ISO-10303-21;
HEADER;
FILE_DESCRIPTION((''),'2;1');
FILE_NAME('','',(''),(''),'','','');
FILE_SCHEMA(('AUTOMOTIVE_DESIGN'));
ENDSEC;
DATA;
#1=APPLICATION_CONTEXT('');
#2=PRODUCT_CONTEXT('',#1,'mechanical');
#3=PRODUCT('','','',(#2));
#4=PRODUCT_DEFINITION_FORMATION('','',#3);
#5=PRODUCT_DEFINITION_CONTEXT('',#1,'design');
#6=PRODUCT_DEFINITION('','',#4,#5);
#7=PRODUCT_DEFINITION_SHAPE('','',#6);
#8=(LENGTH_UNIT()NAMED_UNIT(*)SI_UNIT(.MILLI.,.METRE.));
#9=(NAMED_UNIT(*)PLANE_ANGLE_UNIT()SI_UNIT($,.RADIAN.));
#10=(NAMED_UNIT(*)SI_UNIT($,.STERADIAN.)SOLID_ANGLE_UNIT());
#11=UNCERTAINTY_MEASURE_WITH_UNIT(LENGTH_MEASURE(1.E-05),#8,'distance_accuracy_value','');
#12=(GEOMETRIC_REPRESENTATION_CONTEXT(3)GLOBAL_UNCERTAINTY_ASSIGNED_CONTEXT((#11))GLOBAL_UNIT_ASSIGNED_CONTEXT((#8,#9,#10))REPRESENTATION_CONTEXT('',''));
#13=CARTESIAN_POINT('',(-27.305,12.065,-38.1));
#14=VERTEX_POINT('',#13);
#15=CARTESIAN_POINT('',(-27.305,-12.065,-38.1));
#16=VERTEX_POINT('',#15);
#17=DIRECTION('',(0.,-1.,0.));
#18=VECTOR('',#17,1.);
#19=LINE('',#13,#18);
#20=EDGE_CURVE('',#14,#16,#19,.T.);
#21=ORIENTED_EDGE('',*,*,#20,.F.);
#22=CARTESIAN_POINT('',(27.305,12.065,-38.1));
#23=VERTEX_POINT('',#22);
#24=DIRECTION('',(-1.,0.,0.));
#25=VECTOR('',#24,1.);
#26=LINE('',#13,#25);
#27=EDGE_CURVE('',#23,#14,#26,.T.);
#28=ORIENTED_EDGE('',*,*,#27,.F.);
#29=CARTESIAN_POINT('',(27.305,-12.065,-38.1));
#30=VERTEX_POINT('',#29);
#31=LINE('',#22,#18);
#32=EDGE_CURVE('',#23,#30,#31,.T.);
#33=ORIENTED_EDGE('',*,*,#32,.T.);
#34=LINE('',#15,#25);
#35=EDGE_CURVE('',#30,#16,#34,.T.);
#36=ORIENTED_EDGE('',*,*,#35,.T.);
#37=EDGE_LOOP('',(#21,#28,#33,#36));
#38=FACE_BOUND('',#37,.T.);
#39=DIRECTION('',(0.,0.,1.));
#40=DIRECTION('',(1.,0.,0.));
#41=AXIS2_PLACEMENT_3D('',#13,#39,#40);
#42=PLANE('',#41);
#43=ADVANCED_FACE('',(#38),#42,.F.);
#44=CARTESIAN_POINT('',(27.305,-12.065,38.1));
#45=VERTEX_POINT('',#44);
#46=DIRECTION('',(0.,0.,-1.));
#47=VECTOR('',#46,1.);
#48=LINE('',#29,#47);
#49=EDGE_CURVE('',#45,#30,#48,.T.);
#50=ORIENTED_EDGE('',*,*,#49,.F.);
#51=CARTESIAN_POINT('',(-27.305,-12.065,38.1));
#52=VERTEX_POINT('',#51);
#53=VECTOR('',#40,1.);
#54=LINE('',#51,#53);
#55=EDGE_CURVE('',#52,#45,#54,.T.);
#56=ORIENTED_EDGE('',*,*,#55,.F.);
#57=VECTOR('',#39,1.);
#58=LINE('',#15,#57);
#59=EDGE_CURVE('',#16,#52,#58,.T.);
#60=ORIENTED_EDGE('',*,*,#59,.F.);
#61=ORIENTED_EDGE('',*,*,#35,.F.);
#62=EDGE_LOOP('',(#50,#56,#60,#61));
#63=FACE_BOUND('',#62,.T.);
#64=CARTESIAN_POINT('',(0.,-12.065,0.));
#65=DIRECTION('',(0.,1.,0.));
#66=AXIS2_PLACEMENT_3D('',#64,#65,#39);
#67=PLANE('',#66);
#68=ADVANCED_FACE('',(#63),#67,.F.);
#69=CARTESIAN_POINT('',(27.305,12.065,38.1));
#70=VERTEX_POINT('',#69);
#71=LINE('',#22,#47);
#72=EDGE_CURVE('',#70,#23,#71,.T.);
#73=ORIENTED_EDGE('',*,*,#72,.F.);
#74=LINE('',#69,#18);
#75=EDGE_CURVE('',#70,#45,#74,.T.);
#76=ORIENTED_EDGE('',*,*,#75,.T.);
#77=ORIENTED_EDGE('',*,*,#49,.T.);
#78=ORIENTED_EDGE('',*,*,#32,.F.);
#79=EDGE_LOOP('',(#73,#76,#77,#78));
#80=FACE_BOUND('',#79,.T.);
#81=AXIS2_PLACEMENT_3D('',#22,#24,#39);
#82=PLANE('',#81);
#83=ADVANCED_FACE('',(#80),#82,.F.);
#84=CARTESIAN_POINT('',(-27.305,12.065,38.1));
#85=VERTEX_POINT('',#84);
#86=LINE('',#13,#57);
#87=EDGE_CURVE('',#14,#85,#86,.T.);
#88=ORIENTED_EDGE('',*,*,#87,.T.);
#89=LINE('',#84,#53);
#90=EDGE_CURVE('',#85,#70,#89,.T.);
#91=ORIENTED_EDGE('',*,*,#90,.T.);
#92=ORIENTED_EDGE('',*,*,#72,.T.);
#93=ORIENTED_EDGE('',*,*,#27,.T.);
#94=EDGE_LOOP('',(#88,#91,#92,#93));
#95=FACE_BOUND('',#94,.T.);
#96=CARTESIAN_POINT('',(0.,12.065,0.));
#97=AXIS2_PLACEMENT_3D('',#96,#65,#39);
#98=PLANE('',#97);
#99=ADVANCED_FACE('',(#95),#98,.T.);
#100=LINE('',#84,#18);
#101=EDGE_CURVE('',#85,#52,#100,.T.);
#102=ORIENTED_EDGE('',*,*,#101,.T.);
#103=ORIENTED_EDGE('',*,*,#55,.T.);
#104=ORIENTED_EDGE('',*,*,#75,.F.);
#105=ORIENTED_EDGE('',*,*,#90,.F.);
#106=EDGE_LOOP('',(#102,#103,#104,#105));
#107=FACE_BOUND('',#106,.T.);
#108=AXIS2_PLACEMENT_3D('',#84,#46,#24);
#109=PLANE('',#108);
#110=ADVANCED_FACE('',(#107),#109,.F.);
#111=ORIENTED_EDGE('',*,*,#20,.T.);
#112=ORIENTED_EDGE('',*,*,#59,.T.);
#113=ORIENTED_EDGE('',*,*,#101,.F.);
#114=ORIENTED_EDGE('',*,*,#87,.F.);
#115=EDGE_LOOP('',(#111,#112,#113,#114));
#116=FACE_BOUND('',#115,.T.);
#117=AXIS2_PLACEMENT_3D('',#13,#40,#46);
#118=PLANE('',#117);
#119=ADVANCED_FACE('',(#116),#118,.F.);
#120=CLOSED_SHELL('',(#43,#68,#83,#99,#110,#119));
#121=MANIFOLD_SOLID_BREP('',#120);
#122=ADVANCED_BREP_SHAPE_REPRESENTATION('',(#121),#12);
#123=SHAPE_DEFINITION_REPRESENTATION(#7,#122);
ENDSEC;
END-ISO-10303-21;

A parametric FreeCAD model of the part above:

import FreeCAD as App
import Part
import Sketcher
from FreeCAD import Vector
Q = App.Units.Quantity

doc = App.newDocument("Part")
body = doc.addObject("PartDesign::Body", "Body")

# Sketch on XZ plane
sketch1 = body.newObject("Sketcher::SketchObject", "Sketch")
sketch1.AttachmentSupport = (doc.getObject("XZ_Plane"), [""])
sketch1.MapMode = "FlatFace"
sketch1.addGeometry([
    Part.LineSegment(Vector(-27, -38, 0), Vector(-27, 38, 0)),
    Part.LineSegment(Vector(-27, 38, 0), Vector(27, 38, 0)),
    Part.LineSegment(Vector(27, 38, 0), Vector(27, -38, 0)),
    Part.LineSegment(Vector(27, -38, 0), Vector(-27, -38, 0)),
], False)
sketch1.addConstraint([
    Sketcher.Constraint("Coincident", 0, 2, 1, 1),
    Sketcher.Constraint("Coincident", 1, 2, 2, 1),
    Sketcher.Constraint("Coincident", 2, 2, 3, 1),
    Sketcher.Constraint("Coincident", 3, 2, 0, 1),
    Sketcher.Constraint("Vertical", 0),
    Sketcher.Constraint("Horizontal", 1),
    Sketcher.Constraint("Vertical", 2),
    Sketcher.Constraint("Horizontal", 3),
    Sketcher.Constraint("Symmetric", 0, 2, 2, 2, -1, 1),
    Sketcher.Constraint("DistanceY", 0, 1, 0, 2, Q("3 in")),
    Sketcher.Constraint("DistanceX", 1, 1, 1, 2, Q("2.15 in")),
])
pad1 = body.newObject("PartDesign::Pad", "Pad")
pad1.Profile = sketch1
pad1.Length = Q("0.95 in")
pad1.Midplane = True

doc.recompute()
